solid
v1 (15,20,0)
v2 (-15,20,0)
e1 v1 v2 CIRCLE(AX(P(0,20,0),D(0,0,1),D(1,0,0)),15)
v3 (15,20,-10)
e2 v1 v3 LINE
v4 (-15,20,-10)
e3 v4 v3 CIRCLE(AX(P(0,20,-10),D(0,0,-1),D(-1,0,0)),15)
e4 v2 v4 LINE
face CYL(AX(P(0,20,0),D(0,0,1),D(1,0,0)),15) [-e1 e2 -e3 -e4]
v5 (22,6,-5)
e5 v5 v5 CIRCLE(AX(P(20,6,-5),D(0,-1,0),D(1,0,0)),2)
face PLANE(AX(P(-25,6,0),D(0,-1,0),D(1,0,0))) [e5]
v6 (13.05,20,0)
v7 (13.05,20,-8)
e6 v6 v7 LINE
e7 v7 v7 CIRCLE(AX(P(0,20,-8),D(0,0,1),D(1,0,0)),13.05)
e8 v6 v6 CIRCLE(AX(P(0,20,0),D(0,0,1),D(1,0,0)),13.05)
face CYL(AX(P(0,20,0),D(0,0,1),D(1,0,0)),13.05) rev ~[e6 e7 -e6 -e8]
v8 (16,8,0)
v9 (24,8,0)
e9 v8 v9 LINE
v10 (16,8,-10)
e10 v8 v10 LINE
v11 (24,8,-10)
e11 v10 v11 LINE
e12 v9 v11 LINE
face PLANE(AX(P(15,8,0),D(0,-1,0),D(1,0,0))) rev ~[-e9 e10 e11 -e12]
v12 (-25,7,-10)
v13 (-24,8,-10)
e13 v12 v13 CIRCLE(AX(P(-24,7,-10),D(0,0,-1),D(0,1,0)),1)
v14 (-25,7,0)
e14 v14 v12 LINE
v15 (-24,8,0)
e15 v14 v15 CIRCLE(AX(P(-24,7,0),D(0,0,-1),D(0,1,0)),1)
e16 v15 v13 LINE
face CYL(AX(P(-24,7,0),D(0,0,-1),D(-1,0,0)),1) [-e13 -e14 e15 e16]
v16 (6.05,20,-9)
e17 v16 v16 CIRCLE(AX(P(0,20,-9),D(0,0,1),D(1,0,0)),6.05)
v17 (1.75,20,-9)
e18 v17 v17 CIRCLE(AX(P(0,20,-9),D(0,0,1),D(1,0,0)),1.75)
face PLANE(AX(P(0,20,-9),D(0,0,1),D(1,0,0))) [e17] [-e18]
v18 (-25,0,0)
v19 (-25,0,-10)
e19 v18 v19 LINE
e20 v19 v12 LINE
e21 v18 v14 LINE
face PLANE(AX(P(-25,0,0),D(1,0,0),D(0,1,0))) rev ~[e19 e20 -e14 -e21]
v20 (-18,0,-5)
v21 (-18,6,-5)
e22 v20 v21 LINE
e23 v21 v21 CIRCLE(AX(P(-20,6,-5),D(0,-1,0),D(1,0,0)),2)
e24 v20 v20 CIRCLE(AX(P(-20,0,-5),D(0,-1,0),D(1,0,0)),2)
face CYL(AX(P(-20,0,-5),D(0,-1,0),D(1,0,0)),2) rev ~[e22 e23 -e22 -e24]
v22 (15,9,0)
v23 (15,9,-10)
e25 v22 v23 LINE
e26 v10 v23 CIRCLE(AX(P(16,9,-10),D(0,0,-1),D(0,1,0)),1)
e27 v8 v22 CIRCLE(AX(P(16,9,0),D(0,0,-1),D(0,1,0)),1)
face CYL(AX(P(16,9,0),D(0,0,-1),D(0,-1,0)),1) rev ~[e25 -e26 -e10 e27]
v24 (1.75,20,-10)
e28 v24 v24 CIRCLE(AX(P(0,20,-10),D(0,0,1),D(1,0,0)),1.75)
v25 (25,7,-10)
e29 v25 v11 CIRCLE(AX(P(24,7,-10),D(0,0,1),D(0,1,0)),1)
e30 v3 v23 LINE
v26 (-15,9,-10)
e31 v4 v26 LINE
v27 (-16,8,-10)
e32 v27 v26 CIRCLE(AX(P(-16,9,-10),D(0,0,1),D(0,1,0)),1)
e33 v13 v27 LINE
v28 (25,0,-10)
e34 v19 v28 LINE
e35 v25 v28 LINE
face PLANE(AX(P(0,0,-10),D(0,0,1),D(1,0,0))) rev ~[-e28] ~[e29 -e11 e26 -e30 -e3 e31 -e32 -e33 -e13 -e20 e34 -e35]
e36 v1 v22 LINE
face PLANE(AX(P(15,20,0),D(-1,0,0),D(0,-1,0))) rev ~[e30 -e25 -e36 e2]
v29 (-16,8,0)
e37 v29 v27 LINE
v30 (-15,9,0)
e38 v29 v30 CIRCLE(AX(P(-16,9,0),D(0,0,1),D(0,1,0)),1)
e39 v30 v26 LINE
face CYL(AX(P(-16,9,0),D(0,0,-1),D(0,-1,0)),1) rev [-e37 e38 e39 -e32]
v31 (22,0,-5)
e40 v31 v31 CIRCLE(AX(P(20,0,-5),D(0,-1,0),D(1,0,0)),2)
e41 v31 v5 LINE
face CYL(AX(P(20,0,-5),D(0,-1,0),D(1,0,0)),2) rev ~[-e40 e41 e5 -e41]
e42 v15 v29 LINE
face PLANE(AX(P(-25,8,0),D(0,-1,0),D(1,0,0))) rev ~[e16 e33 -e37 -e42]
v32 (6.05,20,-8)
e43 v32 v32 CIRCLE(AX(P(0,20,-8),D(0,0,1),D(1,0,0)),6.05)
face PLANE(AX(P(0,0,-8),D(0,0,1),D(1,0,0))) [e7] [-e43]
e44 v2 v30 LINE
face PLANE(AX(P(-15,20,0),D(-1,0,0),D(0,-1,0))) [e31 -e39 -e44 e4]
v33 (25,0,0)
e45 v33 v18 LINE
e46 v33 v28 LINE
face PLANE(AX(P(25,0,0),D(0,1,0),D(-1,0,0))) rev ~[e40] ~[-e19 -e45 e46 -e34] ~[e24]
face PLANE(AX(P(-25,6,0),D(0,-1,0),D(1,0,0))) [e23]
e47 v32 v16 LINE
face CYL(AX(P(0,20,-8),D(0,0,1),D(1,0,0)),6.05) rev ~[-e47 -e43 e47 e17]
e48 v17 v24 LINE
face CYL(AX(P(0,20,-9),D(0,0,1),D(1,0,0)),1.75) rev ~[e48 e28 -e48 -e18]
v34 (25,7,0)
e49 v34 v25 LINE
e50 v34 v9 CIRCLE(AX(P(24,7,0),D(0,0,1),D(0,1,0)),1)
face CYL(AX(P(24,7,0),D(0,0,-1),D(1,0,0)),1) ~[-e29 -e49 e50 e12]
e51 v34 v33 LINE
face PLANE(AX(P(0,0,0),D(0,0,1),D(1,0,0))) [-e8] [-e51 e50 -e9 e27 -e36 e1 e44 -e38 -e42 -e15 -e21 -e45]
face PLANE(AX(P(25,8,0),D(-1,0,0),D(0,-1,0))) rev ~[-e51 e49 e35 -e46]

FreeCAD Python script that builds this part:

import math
import FreeCAD as App
import Part
import Sketcher
from FreeCAD import Vector
Q = App.Units.Quantity


def edges_at(feature, points):
    """Names of the edges that pass closest to the given points."""
    edges = feature.Shape.Edges
    near = lambda p: min(range(len(edges)), key=lambda i: edges[i].distToShape(Part.Vertex(*p))[0])
    return sorted({f"Edge{near(p) + 1}" for p in points})

doc = App.newDocument("Part")
params = doc.addObject("Spreadsheet::Sheet", "Params")
for row, (alias, value) in enumerate([
    ("sketch1_radius", "15 mm"),
    ("sketch1_width", "50 mm"),
    ("sketch1_height", "8 mm"),
    ("pad1_length", "10 mm"),
    ("sketch2_diameter", "26.1 mm"),
    ("pocket1_length", "8 mm"),
    ("sketch3_diameter", "12.1 mm"),
    ("pocket2_length", "1 mm"),
    ("sketch4_diameter", "3.5 mm"),
    ("pocket3_length", "1 mm"),
    ("sketch5_diameter", "4 mm"),
    ("pocket4_length", "6 mm"),
    ("fillet_radius", "1 mm"),
], start=1):
    params.set(f"A{row}", alias)
    params.set(f"B{row}", "=" + value)
    params.setAlias(f"B{row}", alias)

body = doc.addObject("PartDesign::Body", "Body")

# Sketch on XY plane
sketch1 = body.newObject("Sketcher::SketchObject", "Sketch")
sketch1.AttachmentSupport = (doc.getObject("XY_Plane"), [""])
sketch1.MapMode = "FlatFace"
sketch1.addGeometry([
    Part.LineSegment(Vector(25, 0, 0), Vector(25, 8, 0)),  # 0
    Part.LineSegment(Vector(25, 8, 0), Vector(15, 8, 0)),  # 1
    Part.LineSegment(Vector(15, 8, 0), Vector(15, 20, 0)),  # 2
    Part.ArcOfCircle(Part.Circle(Vector(0, 20, 0), Vector(0, 0, 1), 15), math.radians(0), math.radians(180)),  # 3
    Part.LineSegment(Vector(-15, 20, 0), Vector(-15, 8, 0)),  # 4
    Part.LineSegment(Vector(-15, 8, 0), Vector(-25, 8, 0)),  # 5
    Part.LineSegment(Vector(-25, 8, 0), Vector(-25, 0, 0)),  # 6
    Part.LineSegment(Vector(-25, 0, 0), Vector(25, 0, 0)),  # 7
], False)
sketch1.addConstraint([
    Sketcher.Constraint("Coincident", 0, 2, 1, 1),
    Sketcher.Constraint("Coincident", 1, 2, 2, 1),
    Sketcher.Constraint("Tangent", 2, 2, 3, 1),
    Sketcher.Constraint("Tangent", 3, 2, 4, 1),
    Sketcher.Constraint("Coincident", 4, 2, 5, 1),
    Sketcher.Constraint("Coincident", 5, 2, 6, 1),
    Sketcher.Constraint("Coincident", 6, 2, 7, 1),
    Sketcher.Constraint("Coincident", 7, 2, 0, 1),
    Sketcher.Constraint("Vertical", 0),
    Sketcher.Constraint("Horizontal", 1),
    Sketcher.Constraint("Vertical", 2),
    Sketcher.Constraint("Vertical", 4),
    Sketcher.Constraint("Horizontal", 5),
    Sketcher.Constraint("Vertical", 6),
    Sketcher.Constraint("Horizontal", 7),
    Sketcher.Constraint("Symmetric", 6, 2, 7, 2, -1, 1),
    Sketcher.Constraint("Symmetric", 1, 2, 4, 2, -2),
    Sketcher.Constraint("Radius", 3, Q("15 mm")),
    Sketcher.Constraint("DistanceX", 7, 1, 7, 2, Q("50 mm")),
    Sketcher.Constraint("DistanceY", 0, 1, 0, 2, Q("8 mm")),
    Sketcher.Constraint("DistanceY", -1, 1, 3, 3, Q("20 mm")),
])
sketch1.setExpression("Constraints[17]", "Params.sketch1_radius")
sketch1.setExpression("Constraints[18]", "Params.sketch1_width")
sketch1.setExpression("Constraints[19]", "Params.sketch1_height")
pad1 = body.newObject("PartDesign::Pad", "Pad")
pad1.Profile = sketch1
pad1.setExpression("Length", "Params.pad1_length")
pad1.Reversed = True

# Sketch on XY plane
sketch2 = body.newObject("Sketcher::SketchObject", "Sketch001")
sketch2.AttachmentSupport = (doc.getObject("XY_Plane"), [""])
sketch2.MapMode = "FlatFace"
sketch2.addGeometry(Part.Circle(Vector(0, 20, 0), Vector(0, 0, 1), 13), False)
sketch2.addConstraint([
    Sketcher.Constraint("PointOnObject", 0, 3, -2),
    Sketcher.Constraint("Diameter", 0, Q("26.1 mm")),
    Sketcher.Constraint("DistanceY", -1, 1, 0, 3, Q("20 mm")),
])
sketch2.setExpression("Constraints[1]", "Params.sketch2_diameter")
pocket1 = body.newObject("PartDesign::Pocket", "Pocket")
pocket1.Profile = sketch2
pocket1.setExpression("Length", "Params.pocket1_length")

# Sketch on XY plane
sketch3 = body.newObject("Sketcher::SketchObject", "Sketch002")
sketch3.AttachmentSupport = (doc.getObject("XY_Plane"), [""])
sketch3.MapMode = "FlatFace"
sketch3.AttachmentOffset = App.Placement(Vector(0, 0, -8), App.Rotation())
sketch3.addGeometry(Part.Circle(Vector(0, 20, 0), Vector(0, 0, 1), 6), False)
sketch3.addConstraint([
    Sketcher.Constraint("PointOnObject", 0, 3, -2),
    Sketcher.Constraint("Diameter", 0, Q("12.1 mm")),
    Sketcher.Constraint("DistanceY", -1, 1, 0, 3, Q("20 mm")),
])
sketch3.setExpression("Constraints[1]", "Params.sketch3_diameter")
pocket2 = body.newObject("PartDesign::Pocket", "Pocket001")
pocket2.Profile = sketch3
pocket2.setExpression("Length", "Params.pocket2_length")

# Sketch on XY plane
sketch4 = body.newObject("Sketcher::SketchObject", "Sketch003")
sketch4.AttachmentSupport = (doc.getObject("XY_Plane"), [""])
sketch4.MapMode = "FlatFace"
sketch4.AttachmentOffset = App.Placement(Vector(0, 0, -9), App.Rotation())
sketch4.addGeometry(Part.Circle(Vector(0, 20, 0), Vector(0, 0, 1), 1.8), False)
sketch4.addConstraint([
    Sketcher.Constraint("PointOnObject", 0, 3, -2),
    Sketcher.Constraint("Diameter", 0, Q("3.5 mm")),
    Sketcher.Constraint("DistanceY", -1, 1, 0, 3, Q("20 mm")),
])
sketch4.setExpression("Constraints[1]", "Params.sketch4_diameter")
pocket3 = body.newObject("PartDesign::Pocket", "Pocket002")
pocket3.Profile = sketch4
pocket3.setExpression("Length", "Params.pocket3_length")

# Sketch on XZ plane
sketch5 = body.newObject("Sketcher::SketchObject", "Sketch004")
sketch5.AttachmentSupport = (doc.getObject("XZ_Plane"), [""])
sketch5.MapMode = "FlatFace"
sketch5.addGeometry([
    Part.Circle(Vector(-20, -5, 0), Vector(0, 0, 1), 2),
    Part.Circle(Vector(20, -5, 0), Vector(0, 0, 1), 2),
], False)
sketch5.addConstraint([
    Sketcher.Constraint("Equal", 0, 1),
    Sketcher.Constraint("Symmetric", 0, 3, 1, 3, -2),
    Sketcher.Constraint("Diameter", 0, Q("4 mm")),
    Sketcher.Constraint("DistanceY", 0, 3, -1, 1, Q("5 mm")),
    Sketcher.Constraint("DistanceX", 0, 3, 1, 3, Q("40 mm")),
])
sketch5.setExpression("Constraints[2]", "Params.sketch5_diameter")
pocket4 = body.newObject("PartDesign::Pocket", "Pocket003")
pocket4.Profile = sketch5
pocket4.setExpression("Length", "Params.pocket4_length")
doc.recompute()

fillet = body.newObject("PartDesign::Fillet", "Fillet")
fillet.Base = (pocket4, edges_at(pocket4, [
    (-15, 8, -5),
    (-25, 8, -5),
    (15, 8, -5),
    (25, 8, -5),
]))
fillet.setExpression("Radius", "Params.fillet_radius")

doc.recompute()
